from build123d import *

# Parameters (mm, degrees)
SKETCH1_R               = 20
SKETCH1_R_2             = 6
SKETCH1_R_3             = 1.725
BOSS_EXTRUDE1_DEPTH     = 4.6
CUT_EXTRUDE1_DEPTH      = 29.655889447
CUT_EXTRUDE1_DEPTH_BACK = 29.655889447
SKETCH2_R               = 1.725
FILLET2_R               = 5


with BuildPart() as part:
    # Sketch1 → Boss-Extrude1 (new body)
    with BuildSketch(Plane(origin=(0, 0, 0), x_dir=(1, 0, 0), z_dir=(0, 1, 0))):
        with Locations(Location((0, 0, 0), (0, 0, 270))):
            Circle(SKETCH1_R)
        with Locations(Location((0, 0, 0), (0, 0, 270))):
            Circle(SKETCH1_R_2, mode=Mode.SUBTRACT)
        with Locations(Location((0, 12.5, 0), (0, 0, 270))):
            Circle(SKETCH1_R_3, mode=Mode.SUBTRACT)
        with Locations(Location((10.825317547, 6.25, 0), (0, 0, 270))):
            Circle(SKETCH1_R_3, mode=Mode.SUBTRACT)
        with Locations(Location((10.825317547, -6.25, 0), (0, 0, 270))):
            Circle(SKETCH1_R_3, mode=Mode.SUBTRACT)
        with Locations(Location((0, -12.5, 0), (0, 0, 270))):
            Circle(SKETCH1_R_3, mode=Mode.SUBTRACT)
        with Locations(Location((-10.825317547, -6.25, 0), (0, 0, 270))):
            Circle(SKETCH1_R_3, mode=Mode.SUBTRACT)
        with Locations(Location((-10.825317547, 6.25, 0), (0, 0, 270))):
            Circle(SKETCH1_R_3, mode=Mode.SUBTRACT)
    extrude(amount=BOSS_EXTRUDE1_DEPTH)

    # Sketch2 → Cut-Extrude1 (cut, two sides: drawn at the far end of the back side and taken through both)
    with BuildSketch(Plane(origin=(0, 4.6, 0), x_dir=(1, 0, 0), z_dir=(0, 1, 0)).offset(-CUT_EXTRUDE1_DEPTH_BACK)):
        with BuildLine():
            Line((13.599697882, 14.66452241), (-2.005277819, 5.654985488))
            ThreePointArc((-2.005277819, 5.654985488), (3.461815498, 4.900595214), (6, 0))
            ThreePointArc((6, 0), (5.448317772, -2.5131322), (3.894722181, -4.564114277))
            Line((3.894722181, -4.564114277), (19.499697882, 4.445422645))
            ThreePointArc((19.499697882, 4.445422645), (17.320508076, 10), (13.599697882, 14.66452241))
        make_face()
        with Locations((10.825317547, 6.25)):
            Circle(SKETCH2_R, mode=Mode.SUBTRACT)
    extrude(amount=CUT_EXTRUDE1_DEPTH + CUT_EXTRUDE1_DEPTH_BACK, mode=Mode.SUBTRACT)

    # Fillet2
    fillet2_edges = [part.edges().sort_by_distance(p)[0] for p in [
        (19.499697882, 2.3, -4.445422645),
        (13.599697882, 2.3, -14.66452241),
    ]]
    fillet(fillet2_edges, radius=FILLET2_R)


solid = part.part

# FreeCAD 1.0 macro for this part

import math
import FreeCAD as App
import Part
import Sketcher

V = App.Vector
Q = App.Units.Quantity


def edges_at(feature, points):
    """Names of the edges that pass closest to the given points."""
    edges = feature.Shape.Edges
    near = lambda p: min(range(len(edges)), key=lambda i: edges[i].distToShape(Part.Vertex(*p))[0])
    return sorted({f"Edge{near(p) + 1}" for p in points})

doc = App.newDocument("Part")
body = doc.addObject("PartDesign::Body", "Body")

# Sketch on XZ plane
sketch1 = body.newObject("Sketcher::SketchObject", "Sketch")
sketch1.AttachmentSupport = (doc.getObject("XZ_Plane"), [""])
sketch1.MapMode = "FlatFace"
sketch1.addGeometry(Part.Circle(V(0, 0, 0), V(0, 0, 1), 20), False)
sketch1.addGeometry(Part.Circle(V(-10.825318, -6.25, 0), V(0, 0, 1), 1.725), False)
sketch1.addGeometry(Part.Circle(V(0, -12.5, 0), V(0, 0, 1), 1.725), False)
sketch1.addGeometry(Part.Circle(V(-10.825318, 6.25, 0), V(0, 0, 1), 1.725), False)
sketch1.addGeometry(Part.Circle(V(0, 0, 0), V(0, 0, 1), 6), False)
sketch1.addGeometry(Part.Circle(V(10.825318, -6.25, 0), V(0, 0, 1), 1.725), False)
sketch1.addGeometry(Part.Circle(V(0, 12.5, 0), V(0, 0, 1), 1.725), False)
sketch1.addGeometry(Part.Circle(V(10.825318, 6.25, 0), V(0, 0, 1), 1.725), False)
sketch1.addConstraint(Sketcher.Constraint("Coincident", 0, 3, -1, 1))
sketch1.addConstraint(Sketcher.Constraint("Coincident", 4, 3, -1, 1))
sketch1.addConstraint(Sketcher.Constraint("Equal", 1, 2))
sketch1.addConstraint(Sketcher.Constraint("Equal", 2, 3))
sketch1.addConstraint(Sketcher.Constraint("Equal", 3, 5))
sketch1.addConstraint(Sketcher.Constraint("Equal", 5, 6))
sketch1.addConstraint(Sketcher.Constraint("Equal", 6, 7))
sketch1.addConstraint(Sketcher.Constraint("Symmetric", 3, 3, 5, 3, -1, 1))
sketch1.addConstraint(Sketcher.Constraint("Symmetric", 2, 3, 6, 3, -1, 1))
sketch1.addConstraint(Sketcher.Constraint("Symmetric", 1, 3, 7, 3, -1, 1))
sketch1.addConstraint(Sketcher.Constraint("Symmetric", 1, 3, 5, 3, -2))
sketch1.addConstraint(Sketcher.Constraint("PointOnObject", 2, 3, -2))
sketch1.addConstraint(Sketcher.Constraint("Diameter", 0, 40.0))
sketch1.addConstraint(Sketcher.Constraint("Diameter", 4, 12.0))
sketch1.addConstraint(Sketcher.Constraint("Diameter", 1, 3.45))
sketch1.addConstraint(Sketcher.Constraint("DistanceY", 2, 3, -1, 1, 12.5))
sketch1.addConstraint(Sketcher.Constraint("DistanceY", 1, 3, 3, 3, 12.5))
sketch1.addConstraint(Sketcher.Constraint("DistanceX", 1, 3, -1, 1, 10.825318))
pad1 = body.newObject("PartDesign::Pad", "Pad")
pad1.Profile = sketch1
pad1.Length = 4.6
pad1.Reversed = True

# Sketch on XZ plane
sketch2 = body.newObject("Sketcher::SketchObject", "Sketch001")
sketch2.AttachmentSupport = (doc.getObject("XZ_Plane"), [""])
sketch2.MapMode = "FlatFace"
sketch2.AttachmentOffset = App.Placement(V(0, 0, -4.6), App.Rotation())
sketch2.addGeometry(Part.LineSegment(V(13.599698, -14.664522, 0), V(-2.005278, -5.654985, 0)), False)
sketch2.addGeometry(Part.ArcOfCircle(Part.Circle(V(0, 0, 0), V(0, 0, 1), 6), math.radians(-109.524686), math.radians(0)), False)
sketch2.addGeometry(Part.ArcOfCircle(Part.Circle(V(0, 0, 0), V(0, 0, 1), 6), math.radians(0), math.radians(49.524686)), False)
sketch2.addGeometry(Part.LineSegment(V(3.894722, 4.564114, 0), V(19.499698, -4.445423, 0)), False)
sketch2.addGeometry(Part.ArcOfCircle(Part.Circle(V(0, 0, 0), V(0, 0, 1), 20), math.radians(-47.157537), math.radians(-12.842463)), False)
sketch2.addGeometry(Part.Circle(V(10.825318, -6.25, 0), V(0, 0, 1), 1.725), False)
sketch2.addConstraint(Sketcher.Constraint("Coincident", 0, 2, 1, 1))
sketch2.addConstraint(Sketcher.Constraint("Tangent", 1, 2, 2, 1))
sketch2.addConstraint(Sketcher.Constraint("Coincident", 2, 2, 3, 1))
sketch2.addConstraint(Sketcher.Constraint("Coincident", 3, 2, 4, 2))
sketch2.addConstraint(Sketcher.Constraint("Coincident", 4, 1, 0, 1))
sketch2.addConstraint(Sketcher.Constraint("Coincident", 1, 3, -1, 1))
sketch2.addConstraint(Sketcher.Constraint("Coincident", 4, 3, -1, 1))
sketch2.addConstraint(Sketcher.Constraint("Equal", 1, 2))
sketch2.addConstraint(Sketcher.Constraint("PointOnObject", 1, 2, -1))
sketch2.addConstraint(Sketcher.Constraint("Parallel", 0, 3))
sketch2.addConstraint(Sketcher.Constraint("Equal", 0, 3))
sketch2.addConstraint(Sketcher.Constraint("Radius", 1, 6.0))
sketch2.addConstraint(Sketcher.Constraint("Radius", 4, 20.0))
sketch2.addConstraint(Sketcher.Constraint("Diameter", 5, 3.45))
sketch2.addConstraint(Sketcher.Constraint("Angle", 0, Q("150 deg")))
sketch2.addConstraint(Sketcher.Constraint("DistanceX", 0, 2, 2, 2, 5.9))
sketch2.addConstraint(Sketcher.Constraint("DistanceY", 5, 3, -1, 1, 6.25))
sketch2.addConstraint(Sketcher.Constraint("DistanceX", 5, 3, 3, 2, 8.67438))
pocket1 = body.newObject("PartDesign::Pocket", "Pocket")
pocket1.Profile = sketch2
pocket1.Type = "ThroughAll"
pocket1.Midplane = True
doc.recompute()

fillet = body.newObject("PartDesign::Fillet", "Fillet")
fillet.Base = (pocket1, edges_at(pocket1, [(19.5, 2.3, -4.445), (13.6, 2.3, -14.665)]))
fillet.Radius = 5

doc.recompute()
